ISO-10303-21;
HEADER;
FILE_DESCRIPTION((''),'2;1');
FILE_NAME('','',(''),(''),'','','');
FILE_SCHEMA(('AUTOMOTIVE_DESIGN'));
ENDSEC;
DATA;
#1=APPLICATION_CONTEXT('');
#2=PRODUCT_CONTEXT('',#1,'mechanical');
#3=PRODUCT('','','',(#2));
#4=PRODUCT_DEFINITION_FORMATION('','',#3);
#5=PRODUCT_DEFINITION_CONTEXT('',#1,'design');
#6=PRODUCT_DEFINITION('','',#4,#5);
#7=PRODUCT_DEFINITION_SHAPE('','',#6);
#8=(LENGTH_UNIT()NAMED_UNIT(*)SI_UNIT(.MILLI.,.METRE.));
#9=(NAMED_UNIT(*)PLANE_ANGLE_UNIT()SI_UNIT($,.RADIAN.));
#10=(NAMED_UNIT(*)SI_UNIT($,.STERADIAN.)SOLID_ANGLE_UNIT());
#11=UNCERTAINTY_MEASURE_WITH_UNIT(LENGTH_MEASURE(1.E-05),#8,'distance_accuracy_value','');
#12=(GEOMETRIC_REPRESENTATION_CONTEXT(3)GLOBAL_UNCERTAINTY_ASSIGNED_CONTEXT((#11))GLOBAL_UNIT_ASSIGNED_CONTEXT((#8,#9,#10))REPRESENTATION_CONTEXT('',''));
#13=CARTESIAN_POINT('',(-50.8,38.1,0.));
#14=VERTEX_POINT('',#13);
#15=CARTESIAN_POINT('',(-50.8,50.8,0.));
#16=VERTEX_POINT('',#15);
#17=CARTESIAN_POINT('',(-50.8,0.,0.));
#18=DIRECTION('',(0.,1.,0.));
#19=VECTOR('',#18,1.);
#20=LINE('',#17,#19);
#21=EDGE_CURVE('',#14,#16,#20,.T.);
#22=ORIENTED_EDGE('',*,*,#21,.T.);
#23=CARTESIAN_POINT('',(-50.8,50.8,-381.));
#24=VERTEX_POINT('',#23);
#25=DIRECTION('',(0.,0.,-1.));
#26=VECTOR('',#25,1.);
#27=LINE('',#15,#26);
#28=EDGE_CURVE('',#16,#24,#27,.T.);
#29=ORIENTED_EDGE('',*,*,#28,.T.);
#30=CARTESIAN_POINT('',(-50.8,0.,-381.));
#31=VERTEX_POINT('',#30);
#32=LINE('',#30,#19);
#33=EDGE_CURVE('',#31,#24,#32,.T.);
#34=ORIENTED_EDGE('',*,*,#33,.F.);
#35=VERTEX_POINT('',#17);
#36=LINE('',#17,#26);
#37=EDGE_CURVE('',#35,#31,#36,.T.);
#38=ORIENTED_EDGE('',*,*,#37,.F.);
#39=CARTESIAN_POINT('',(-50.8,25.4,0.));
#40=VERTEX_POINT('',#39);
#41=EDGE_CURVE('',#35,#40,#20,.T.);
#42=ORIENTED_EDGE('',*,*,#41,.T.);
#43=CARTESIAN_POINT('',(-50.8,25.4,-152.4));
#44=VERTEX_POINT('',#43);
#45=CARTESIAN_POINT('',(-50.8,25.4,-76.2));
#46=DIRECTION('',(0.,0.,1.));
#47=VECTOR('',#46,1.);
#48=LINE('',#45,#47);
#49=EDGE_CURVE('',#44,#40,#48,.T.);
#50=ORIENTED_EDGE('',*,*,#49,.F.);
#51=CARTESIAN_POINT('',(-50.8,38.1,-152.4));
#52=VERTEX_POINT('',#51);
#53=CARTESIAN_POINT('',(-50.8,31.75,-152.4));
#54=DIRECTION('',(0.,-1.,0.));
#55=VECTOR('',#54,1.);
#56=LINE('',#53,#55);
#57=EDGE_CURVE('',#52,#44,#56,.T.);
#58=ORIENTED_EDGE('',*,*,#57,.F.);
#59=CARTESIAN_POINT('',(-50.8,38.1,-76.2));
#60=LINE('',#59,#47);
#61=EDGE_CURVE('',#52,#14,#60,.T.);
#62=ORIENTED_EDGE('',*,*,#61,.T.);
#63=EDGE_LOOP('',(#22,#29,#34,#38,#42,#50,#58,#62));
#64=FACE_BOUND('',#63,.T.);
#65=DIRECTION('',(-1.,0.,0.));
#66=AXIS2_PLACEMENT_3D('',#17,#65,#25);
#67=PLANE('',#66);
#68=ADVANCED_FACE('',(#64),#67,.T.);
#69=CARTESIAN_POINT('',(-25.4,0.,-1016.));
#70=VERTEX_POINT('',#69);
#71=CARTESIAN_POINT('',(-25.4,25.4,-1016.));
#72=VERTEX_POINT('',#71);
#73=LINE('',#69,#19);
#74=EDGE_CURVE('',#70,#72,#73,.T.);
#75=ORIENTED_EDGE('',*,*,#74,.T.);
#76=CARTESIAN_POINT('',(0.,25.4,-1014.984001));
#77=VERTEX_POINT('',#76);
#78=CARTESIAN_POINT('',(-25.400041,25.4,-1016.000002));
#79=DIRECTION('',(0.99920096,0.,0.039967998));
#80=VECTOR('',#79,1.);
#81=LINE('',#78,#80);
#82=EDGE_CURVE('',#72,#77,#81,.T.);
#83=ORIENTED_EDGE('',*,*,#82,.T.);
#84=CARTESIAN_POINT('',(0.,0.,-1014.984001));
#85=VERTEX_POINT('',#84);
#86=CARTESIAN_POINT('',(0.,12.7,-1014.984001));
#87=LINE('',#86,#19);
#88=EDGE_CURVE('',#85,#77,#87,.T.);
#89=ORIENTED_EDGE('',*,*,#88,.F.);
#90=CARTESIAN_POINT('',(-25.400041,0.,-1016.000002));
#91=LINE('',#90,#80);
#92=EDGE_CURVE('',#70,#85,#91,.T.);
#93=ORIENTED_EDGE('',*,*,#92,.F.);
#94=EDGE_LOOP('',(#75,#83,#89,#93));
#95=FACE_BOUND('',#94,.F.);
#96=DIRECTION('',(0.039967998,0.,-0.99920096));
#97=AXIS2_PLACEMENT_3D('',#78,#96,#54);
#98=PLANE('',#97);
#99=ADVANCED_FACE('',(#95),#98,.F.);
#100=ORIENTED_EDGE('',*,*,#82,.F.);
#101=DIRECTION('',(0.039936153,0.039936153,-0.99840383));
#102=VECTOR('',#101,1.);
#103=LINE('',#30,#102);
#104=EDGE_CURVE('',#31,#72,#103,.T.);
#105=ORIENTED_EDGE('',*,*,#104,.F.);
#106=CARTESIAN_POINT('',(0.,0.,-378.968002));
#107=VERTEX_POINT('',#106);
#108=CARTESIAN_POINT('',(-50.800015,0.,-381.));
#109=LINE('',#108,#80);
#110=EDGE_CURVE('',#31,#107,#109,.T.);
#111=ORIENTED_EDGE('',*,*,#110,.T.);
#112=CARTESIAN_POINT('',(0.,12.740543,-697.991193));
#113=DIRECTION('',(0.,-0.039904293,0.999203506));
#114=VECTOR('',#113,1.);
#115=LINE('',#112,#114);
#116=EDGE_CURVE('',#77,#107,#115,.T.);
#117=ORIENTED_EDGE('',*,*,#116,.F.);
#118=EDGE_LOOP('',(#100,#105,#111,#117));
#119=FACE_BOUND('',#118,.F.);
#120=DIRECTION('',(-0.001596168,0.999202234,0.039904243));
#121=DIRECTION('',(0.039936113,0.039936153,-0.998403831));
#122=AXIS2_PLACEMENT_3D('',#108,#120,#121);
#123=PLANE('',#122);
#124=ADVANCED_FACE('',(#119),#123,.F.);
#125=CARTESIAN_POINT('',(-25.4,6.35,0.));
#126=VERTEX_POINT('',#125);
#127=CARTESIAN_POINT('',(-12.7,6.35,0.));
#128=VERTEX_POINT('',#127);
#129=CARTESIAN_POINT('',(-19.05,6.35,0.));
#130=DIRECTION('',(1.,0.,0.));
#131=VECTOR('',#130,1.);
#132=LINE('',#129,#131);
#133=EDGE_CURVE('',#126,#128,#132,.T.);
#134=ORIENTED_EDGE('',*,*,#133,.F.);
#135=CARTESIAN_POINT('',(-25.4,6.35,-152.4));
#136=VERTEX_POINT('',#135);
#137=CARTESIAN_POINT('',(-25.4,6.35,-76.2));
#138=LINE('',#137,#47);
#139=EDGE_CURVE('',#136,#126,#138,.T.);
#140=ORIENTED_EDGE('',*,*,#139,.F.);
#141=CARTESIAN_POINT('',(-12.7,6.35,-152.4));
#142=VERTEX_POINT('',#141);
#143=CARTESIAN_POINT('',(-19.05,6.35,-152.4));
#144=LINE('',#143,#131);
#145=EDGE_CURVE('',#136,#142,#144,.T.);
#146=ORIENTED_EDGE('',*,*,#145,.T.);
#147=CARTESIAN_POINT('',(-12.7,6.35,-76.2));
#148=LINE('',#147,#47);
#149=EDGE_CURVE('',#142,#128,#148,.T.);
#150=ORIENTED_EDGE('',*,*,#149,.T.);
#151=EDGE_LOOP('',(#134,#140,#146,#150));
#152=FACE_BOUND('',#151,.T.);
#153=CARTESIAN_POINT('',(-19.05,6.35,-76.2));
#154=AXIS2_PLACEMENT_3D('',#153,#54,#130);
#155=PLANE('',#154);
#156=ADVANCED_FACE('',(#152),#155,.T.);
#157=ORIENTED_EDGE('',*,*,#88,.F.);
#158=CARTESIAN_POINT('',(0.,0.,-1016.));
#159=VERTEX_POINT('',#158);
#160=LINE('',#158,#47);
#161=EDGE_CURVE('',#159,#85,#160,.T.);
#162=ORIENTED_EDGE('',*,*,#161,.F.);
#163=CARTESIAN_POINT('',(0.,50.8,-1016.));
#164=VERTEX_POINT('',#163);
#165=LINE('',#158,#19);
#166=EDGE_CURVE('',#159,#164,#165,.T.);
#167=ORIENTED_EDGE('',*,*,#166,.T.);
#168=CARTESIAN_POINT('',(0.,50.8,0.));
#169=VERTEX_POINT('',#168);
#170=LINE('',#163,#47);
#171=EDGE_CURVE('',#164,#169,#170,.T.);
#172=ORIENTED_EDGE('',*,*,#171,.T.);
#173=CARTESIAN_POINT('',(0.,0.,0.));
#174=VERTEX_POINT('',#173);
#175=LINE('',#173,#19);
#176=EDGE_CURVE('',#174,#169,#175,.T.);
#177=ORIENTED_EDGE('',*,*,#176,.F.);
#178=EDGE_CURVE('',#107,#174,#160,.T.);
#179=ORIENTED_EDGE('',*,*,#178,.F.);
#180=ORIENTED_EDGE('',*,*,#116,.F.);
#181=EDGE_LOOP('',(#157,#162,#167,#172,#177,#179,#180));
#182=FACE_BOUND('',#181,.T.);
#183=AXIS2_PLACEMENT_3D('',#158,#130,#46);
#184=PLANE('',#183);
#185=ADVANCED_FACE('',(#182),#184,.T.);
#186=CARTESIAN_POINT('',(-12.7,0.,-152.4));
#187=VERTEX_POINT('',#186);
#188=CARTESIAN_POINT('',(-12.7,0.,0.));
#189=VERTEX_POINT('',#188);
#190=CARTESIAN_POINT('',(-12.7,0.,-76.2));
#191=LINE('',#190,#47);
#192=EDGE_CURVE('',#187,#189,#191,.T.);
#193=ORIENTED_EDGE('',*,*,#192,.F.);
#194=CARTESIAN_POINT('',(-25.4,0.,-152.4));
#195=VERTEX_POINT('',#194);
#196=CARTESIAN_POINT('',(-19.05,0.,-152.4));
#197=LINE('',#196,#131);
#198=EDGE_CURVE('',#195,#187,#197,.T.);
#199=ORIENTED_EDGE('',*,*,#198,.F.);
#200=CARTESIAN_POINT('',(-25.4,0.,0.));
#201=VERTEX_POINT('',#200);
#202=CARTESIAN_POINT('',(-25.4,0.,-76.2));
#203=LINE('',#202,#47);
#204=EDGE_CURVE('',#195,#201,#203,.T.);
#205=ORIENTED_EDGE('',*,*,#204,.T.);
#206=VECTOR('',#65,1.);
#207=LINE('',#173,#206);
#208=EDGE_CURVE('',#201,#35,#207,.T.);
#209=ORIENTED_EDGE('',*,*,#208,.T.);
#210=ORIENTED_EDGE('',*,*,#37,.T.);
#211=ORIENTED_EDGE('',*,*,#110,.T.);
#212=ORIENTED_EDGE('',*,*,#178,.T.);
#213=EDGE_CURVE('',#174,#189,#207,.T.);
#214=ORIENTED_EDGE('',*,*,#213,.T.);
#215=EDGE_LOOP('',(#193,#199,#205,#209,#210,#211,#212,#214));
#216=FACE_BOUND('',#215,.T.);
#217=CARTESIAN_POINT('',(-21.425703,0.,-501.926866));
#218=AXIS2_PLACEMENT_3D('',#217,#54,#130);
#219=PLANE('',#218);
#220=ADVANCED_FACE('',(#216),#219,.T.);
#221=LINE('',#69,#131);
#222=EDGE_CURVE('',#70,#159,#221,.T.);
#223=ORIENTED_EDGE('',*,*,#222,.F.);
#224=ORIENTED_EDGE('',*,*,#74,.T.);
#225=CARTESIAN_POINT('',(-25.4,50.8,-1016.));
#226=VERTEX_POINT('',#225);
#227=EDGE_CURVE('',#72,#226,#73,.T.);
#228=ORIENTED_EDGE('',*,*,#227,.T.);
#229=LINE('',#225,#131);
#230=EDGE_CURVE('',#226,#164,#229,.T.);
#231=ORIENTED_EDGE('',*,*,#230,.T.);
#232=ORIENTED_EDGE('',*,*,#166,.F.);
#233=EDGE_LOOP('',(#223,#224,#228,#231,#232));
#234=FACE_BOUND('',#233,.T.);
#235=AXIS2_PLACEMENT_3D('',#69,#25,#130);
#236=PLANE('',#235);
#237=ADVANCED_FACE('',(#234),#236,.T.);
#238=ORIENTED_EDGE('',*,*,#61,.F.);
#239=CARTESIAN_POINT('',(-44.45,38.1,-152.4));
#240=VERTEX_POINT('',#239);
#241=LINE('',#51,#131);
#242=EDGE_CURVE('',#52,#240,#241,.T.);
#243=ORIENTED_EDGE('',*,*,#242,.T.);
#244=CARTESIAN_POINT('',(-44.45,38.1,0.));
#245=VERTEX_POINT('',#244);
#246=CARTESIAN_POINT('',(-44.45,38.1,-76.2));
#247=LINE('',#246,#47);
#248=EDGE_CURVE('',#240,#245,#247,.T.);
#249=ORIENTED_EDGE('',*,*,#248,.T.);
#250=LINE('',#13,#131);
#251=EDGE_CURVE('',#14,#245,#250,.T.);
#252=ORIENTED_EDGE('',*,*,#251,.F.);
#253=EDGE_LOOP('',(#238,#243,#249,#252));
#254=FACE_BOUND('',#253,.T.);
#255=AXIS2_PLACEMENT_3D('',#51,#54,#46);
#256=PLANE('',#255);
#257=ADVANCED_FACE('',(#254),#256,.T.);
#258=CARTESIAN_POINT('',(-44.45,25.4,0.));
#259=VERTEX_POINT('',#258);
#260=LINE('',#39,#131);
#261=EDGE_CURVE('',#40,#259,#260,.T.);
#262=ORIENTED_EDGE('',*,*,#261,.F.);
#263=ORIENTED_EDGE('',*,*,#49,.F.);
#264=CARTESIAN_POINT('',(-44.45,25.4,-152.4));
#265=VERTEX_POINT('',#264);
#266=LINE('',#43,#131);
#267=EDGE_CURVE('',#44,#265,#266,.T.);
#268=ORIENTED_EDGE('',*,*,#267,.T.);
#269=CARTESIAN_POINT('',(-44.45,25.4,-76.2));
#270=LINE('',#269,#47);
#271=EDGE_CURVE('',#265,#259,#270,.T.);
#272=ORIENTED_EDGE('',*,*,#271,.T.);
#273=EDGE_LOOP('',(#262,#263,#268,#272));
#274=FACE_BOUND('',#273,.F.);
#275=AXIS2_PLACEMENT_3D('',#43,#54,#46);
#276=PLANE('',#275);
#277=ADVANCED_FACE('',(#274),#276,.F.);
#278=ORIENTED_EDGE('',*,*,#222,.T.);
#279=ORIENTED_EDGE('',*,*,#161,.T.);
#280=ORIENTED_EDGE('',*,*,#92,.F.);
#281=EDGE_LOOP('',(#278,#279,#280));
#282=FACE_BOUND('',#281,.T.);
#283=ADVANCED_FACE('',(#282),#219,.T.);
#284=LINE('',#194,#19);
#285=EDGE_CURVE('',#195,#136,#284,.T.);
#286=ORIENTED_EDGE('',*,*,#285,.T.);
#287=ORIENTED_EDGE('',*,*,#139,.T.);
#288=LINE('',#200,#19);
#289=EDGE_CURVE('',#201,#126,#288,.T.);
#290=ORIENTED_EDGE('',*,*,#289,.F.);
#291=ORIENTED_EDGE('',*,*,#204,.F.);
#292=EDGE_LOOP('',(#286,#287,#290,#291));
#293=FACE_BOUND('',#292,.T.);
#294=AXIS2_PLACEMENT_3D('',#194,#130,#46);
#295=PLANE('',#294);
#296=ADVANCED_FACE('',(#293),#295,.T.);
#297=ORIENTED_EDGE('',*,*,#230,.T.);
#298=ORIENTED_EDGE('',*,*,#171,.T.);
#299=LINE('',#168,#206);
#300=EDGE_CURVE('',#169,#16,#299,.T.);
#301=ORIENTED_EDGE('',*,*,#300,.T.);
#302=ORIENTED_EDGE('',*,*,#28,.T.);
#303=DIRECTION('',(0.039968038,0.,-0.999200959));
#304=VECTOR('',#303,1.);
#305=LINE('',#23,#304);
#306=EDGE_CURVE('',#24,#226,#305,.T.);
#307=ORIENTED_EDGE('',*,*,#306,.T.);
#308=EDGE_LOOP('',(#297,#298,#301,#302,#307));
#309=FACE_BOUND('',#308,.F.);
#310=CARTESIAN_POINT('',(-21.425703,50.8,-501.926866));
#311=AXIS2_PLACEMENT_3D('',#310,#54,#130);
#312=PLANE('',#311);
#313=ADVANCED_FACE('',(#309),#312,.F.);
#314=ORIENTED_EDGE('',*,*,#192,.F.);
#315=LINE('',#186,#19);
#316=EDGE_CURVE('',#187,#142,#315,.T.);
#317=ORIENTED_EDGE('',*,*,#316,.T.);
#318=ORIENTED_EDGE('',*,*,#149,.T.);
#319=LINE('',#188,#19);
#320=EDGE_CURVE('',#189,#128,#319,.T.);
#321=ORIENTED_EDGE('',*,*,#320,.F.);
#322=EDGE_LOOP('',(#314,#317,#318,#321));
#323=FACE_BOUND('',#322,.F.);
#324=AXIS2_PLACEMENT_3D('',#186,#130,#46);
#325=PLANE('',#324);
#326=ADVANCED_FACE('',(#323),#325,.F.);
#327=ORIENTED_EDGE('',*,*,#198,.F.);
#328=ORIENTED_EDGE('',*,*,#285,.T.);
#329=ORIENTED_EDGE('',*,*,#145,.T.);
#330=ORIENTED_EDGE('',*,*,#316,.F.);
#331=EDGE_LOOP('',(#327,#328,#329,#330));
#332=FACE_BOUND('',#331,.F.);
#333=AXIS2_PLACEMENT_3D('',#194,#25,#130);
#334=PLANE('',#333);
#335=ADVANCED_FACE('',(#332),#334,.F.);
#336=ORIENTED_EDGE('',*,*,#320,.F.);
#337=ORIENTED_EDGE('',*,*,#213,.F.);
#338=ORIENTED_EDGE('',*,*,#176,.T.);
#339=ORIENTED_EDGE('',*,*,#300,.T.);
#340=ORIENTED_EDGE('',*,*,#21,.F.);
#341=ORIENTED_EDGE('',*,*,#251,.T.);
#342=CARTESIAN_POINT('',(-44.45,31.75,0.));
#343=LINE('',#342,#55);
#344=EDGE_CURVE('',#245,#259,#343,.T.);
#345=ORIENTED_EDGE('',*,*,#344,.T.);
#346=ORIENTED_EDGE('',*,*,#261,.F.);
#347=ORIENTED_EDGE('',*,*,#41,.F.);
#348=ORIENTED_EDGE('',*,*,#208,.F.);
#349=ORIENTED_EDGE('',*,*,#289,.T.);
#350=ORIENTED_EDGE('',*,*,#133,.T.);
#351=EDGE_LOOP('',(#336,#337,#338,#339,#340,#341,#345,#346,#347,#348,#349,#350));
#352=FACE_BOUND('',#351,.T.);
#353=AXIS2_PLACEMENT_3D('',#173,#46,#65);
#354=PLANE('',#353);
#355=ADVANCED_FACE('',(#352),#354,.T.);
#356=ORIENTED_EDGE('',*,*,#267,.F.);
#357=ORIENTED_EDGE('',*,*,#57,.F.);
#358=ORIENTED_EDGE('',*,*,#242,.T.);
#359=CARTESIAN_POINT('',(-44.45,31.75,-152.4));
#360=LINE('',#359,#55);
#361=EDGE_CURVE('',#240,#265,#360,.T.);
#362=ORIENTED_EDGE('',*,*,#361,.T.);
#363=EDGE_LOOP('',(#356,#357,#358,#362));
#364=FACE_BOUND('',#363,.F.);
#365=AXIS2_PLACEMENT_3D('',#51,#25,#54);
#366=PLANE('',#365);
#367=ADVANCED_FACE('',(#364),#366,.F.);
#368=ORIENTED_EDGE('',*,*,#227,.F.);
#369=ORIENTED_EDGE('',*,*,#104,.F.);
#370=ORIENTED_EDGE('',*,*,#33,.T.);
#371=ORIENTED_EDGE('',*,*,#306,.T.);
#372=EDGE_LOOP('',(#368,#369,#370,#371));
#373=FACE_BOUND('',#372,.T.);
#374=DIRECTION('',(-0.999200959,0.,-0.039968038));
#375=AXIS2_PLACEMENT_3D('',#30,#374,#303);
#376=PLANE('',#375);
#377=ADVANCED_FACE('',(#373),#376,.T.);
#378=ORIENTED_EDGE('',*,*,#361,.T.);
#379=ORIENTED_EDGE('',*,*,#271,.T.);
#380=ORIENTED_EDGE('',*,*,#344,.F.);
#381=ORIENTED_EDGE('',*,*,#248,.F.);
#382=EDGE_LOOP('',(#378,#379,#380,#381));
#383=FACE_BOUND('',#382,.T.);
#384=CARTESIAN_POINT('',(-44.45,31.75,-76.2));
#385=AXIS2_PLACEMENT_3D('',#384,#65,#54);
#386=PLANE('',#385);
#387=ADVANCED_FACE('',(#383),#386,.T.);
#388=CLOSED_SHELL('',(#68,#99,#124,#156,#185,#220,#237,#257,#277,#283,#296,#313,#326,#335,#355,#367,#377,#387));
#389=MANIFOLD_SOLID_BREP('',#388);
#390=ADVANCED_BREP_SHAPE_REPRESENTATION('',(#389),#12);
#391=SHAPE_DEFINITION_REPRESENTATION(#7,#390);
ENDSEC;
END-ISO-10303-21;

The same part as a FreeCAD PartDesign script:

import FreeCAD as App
import Part
import Sketcher

V = App.Vector
Q = App.Units.Quantity


def add_polygon(sketch, points):
    """Adds a closed chain of lines whose ends are joined by coincident constraints."""
    first, n = sketch.GeometryCount, len(points)
    for a, b in zip(points, points[1:] + points[:1]):
        sketch.addGeometry(Part.LineSegment(App.Vector(*a, 0), App.Vector(*b, 0)), False)
    for i in range(n):
        sketch.addConstraint(Sketcher.Constraint("Coincident", first + i, 2, first + (i + 1) % n, 1))

doc = App.newDocument("Part")
body = doc.addObject("PartDesign::Body", "Body")

# Sketch on XZ plane
sketch1 = doc.addObject("Sketcher::SketchObject", "Sketch")
body.addObject(sketch1)
sketch1.AttachmentSupport = (doc.XZ_Plane, [""])
sketch1.MapMode = "FlatFace"
add_polygon(sketch1, [(0, -1016), (0, 0), (-51, 0), (-51, -381), (-25, -1016)])  # lines 0-4
sketch1.addConstraint([
    Sketcher.Constraint("Vertical", 0),
    Sketcher.Constraint("Horizontal", 1),
    Sketcher.Constraint("Vertical", 2),
    Sketcher.Constraint("Horizontal", 4),
    Sketcher.Constraint("Coincident", 0, 2, -1, 1),
    Sketcher.Constraint("DistanceX", 1, 2, 1, 1, Q("2 in")),
    Sketcher.Constraint("DistanceX", 4, 1, 4, 2, Q("1 in")),
    Sketcher.Constraint("DistanceY", 0, 1, 0, 2, Q("40 in")),
    Sketcher.Constraint("DistanceY", 2, 2, 2, 1, Q("15 in")),
])
pad1 = doc.addObject("PartDesign::Pad", "Pad")
body.addObject(pad1)
pad1.Profile = sketch1
pad1.Length = Q("2 in")
pad1.Reversed = True

# Sketch on YZ plane
sketch2 = doc.addObject("Sketcher::SketchObject", "Sketch001")
body.addObject(sketch2)
sketch2.AttachmentSupport = (doc.YZ_Plane, [""])
sketch2.MapMode = "FlatFace"
sketch2.AttachmentOffset = App.Placement(V(0, 0, -2 * 25.4), App.Rotation())
add_polygon(sketch2, [(38, 0), (38, -152), (25, -152), (25, 0)])  # lines 0-3
sketch2.addConstraint([
    Sketcher.Constraint("Vertical", 0),
    Sketcher.Constraint("Horizontal", 1),
    Sketcher.Constraint("Vertical", 2),
    Sketcher.Constraint("Horizontal", 3),
    Sketcher.Constraint("PointOnObject", 2, 2, -1),
    Sketcher.Constraint("DistanceY", 0, 2, 0, 1, Q("6 in")),
    Sketcher.Constraint("DistanceX", 1, 2, 1, 1, Q("0.5 in")),
    Sketcher.Constraint("DistanceX", -1, 1, 1, 2, Q("1 in")),
])
pocket1 = doc.addObject("PartDesign::Pocket", "Pocket")
body.addObject(pocket1)
pocket1.Profile = sketch2
pocket1.Length = Q("0.25 in")
pocket1.Reversed = True

# Sketch on an angled plane
sketch3 = doc.addObject("Sketcher::SketchObject", "Sketch002")
body.addObject(sketch3)
sketch3.Placement = App.Placement(V(-65.934505, 0, -2.63738), App.Rotation(V(0, -1, 0), V(-0.039967998, 0, 0.99920096), V(-0.99920096, 0, -0.039967998), "ZXY"))
add_polygon(sketch3, [(0, -1014), (0, -379), (-25, -1014)])  # lines 0-2
sketch3.addConstraint([
    Sketcher.Constraint("Vertical", 0),
    Sketcher.Constraint("Horizontal", 2),
    Sketcher.Constraint("PointOnObject", 0, 2, -2),
    Sketcher.Constraint("DistanceX", 2, 1, 2, 2, Q("1 in")),
    Sketcher.Constraint("Distance", 1, 636.015188),
    Sketcher.Constraint("DistanceY", 0, 2, -1, 1, 378.665189),
])
pocket2 = doc.addObject("PartDesign::Pocket", "Pocket001")
body.addObject(pocket2)
pocket2.Profile = sketch3
pocket2.Type = "ThroughAll"

# Sketch on XZ plane
sketch4 = doc.addObject("Sketcher::SketchObject", "Sketch003")
body.addObject(sketch4)
sketch4.AttachmentSupport = (doc.XZ_Plane, [""])
sketch4.MapMode = "FlatFace"
add_polygon(sketch4, [(-25, 0), (-25, -152), (-13, -152), (-13, 0)])  # lines 0-3
sketch4.addConstraint([
    Sketcher.Constraint("Vertical", 0),
    Sketcher.Constraint("Horizontal", 1),
    Sketcher.Constraint("Vertical", 2),
    Sketcher.Constraint("Horizontal", 3),
    Sketcher.Constraint("PointOnObject", 2, 2, -1),
    Sketcher.Constraint("DistanceY", 0, 2, 0, 1, Q("6 in")),
    Sketcher.Constraint("DistanceX", 1, 1, 1, 2, Q("0.5 in")),
    Sketcher.Constraint("DistanceX", 0, 2, -1, 1, Q("1 in")),
])
pocket3 = doc.addObject("PartDesign::Pocket", "Pocket002")
body.addObject(pocket3)
pocket3.Profile = sketch4
pocket3.Length = Q("0.25 in")

doc.recompute()
